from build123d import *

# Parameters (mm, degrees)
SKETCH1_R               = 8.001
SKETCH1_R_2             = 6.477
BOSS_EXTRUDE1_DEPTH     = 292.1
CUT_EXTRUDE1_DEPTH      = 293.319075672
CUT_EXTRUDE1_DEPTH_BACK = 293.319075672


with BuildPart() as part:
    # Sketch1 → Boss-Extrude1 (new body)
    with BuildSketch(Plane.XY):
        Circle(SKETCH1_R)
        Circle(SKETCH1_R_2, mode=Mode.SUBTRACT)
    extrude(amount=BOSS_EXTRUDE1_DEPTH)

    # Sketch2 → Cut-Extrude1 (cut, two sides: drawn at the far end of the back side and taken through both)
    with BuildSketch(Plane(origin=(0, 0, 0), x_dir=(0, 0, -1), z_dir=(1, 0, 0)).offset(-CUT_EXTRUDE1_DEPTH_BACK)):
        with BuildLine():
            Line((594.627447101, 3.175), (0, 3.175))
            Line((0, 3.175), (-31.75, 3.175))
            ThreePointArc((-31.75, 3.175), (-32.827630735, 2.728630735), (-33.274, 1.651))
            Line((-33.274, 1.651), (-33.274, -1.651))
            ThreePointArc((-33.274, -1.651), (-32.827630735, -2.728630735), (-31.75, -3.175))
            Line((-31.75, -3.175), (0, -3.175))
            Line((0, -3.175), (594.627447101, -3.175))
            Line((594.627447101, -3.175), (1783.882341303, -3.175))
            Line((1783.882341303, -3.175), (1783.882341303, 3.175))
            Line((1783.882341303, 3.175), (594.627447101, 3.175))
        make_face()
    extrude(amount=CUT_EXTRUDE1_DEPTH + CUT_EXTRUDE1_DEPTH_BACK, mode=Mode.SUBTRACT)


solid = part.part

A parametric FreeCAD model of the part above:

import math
import FreeCAD as App
import Part
import Sketcher
from FreeCAD import Vector
Q = App.Units.Quantity

doc = App.newDocument("Part")
body = doc.addObject("PartDesign::Body", "Body")

sketch1 = body.newObject("Sketcher::SketchObject", "Sketch")
sketch1.AttachmentSupport = (doc.getObject("XY_Plane"), [""])
sketch1.MapMode = "FlatFace"
sketch1.addGeometry(Part.Circle(Vector(0, 0, 0), Vector(0, 0, 1), 8), False)
sketch1.addGeometry(Part.Circle(Vector(0, 0, 0), Vector(0, 0, 1), 6), False)
sketch1.addConstraint(Sketcher.Constraint("Coincident", 0, 3, -1, 1))
sketch1.addConstraint(Sketcher.Constraint("Coincident", 1, 3, -1, 1))
sketch1.addConstraint(Sketcher.Constraint("Diameter", 0, Q("0.63 in")))
sketch1.addConstraint(Sketcher.Constraint("Diameter", 1, Q("0.51 in")))
pad1 = body.newObject("PartDesign::Pad", "Pad")
pad1.Profile = sketch1
pad1.Length = Q("11.5 in")

sketch2 = body.newObject("Sketcher::SketchObject", "Sketch001")
sketch2.AttachmentSupport = (doc.getObject("YZ_Plane"), [""])
sketch2.MapMode = "FlatFace"
sketch2.addGeometry(Part.ArcOfCircle(Part.Circle(Vector(1.7, 31.8, 0), Vector(0, 0, 1), 1.5), math.radians(0), math.radians(90)), False)
sketch2.addGeometry(Part.LineSegment(Vector(1.7, 33.3, 0), Vector(-1.7, 33.3, 0)), False)
sketch2.addGeometry(Part.ArcOfCircle(Part.Circle(Vector(-1.7, 31.8, 0), Vector(0, 0, 1), 1.5), math.radians(90), math.radians(180)), False)
sketch2.addGeometry(Part.LineSegment(Vector(-3.2, 31.8, 0), Vector(-3.2, -1783.9, 0)), False)
sketch2.addGeometry(Part.LineSegment(Vector(-3.2, -1783.9, 0), Vector(3.2, -1783.9, 0)), False)
sketch2.addGeometry(Part.LineSegment(Vector(3.2, -1783.9, 0), Vector(3.2, 31.8, 0)), False)
sketch2.addConstraint(Sketcher.Constraint("Tangent", 0, 2, 1, 1))
sketch2.addConstraint(Sketcher.Constraint("Tangent", 1, 2, 2, 1))
sketch2.addConstraint(Sketcher.Constraint("Tangent", 2, 2, 3, 1))
sketch2.addConstraint(Sketcher.Constraint("Coincident", 3, 2, 4, 1))
sketch2.addConstraint(Sketcher.Constraint("Coincident", 4, 2, 5, 1))
sketch2.addConstraint(Sketcher.Constraint("Tangent", 5, 2, 0, 1))
sketch2.addConstraint(Sketcher.Constraint("Horizontal", 1))
sketch2.addConstraint(Sketcher.Constraint("Vertical", 3))
sketch2.addConstraint(Sketcher.Constraint("Horizontal", 4))
sketch2.addConstraint(Sketcher.Constraint("Vertical", 5))
sketch2.addConstraint(Sketcher.Constraint("Equal", 0, 2))
sketch2.addConstraint(Sketcher.Constraint("Radius", 0, Q("0.06 in")))
sketch2.addConstraint(Sketcher.Constraint("DistanceX", 1, 2, 1, 1, Q("0.13 in")))
sketch2.addConstraint(Sketcher.Constraint("DistanceY", -1, 1, 0, 3, Q("1.25 in")))
sketch2.addConstraint(Sketcher.Constraint("DistanceX", -1, 1, 0, 3, Q("0.065 in")))
sketch2.addConstraint(Sketcher.Constraint("DistanceY", 3, 2, 3, 1, Q("1815.632341 mm")))
pocket1 = body.newObject("PartDesign::Pocket", "Pocket")
pocket1.Profile = sketch2
pocket1.Type = "ThroughAll"
pocket1.Midplane = True

doc.recompute()
